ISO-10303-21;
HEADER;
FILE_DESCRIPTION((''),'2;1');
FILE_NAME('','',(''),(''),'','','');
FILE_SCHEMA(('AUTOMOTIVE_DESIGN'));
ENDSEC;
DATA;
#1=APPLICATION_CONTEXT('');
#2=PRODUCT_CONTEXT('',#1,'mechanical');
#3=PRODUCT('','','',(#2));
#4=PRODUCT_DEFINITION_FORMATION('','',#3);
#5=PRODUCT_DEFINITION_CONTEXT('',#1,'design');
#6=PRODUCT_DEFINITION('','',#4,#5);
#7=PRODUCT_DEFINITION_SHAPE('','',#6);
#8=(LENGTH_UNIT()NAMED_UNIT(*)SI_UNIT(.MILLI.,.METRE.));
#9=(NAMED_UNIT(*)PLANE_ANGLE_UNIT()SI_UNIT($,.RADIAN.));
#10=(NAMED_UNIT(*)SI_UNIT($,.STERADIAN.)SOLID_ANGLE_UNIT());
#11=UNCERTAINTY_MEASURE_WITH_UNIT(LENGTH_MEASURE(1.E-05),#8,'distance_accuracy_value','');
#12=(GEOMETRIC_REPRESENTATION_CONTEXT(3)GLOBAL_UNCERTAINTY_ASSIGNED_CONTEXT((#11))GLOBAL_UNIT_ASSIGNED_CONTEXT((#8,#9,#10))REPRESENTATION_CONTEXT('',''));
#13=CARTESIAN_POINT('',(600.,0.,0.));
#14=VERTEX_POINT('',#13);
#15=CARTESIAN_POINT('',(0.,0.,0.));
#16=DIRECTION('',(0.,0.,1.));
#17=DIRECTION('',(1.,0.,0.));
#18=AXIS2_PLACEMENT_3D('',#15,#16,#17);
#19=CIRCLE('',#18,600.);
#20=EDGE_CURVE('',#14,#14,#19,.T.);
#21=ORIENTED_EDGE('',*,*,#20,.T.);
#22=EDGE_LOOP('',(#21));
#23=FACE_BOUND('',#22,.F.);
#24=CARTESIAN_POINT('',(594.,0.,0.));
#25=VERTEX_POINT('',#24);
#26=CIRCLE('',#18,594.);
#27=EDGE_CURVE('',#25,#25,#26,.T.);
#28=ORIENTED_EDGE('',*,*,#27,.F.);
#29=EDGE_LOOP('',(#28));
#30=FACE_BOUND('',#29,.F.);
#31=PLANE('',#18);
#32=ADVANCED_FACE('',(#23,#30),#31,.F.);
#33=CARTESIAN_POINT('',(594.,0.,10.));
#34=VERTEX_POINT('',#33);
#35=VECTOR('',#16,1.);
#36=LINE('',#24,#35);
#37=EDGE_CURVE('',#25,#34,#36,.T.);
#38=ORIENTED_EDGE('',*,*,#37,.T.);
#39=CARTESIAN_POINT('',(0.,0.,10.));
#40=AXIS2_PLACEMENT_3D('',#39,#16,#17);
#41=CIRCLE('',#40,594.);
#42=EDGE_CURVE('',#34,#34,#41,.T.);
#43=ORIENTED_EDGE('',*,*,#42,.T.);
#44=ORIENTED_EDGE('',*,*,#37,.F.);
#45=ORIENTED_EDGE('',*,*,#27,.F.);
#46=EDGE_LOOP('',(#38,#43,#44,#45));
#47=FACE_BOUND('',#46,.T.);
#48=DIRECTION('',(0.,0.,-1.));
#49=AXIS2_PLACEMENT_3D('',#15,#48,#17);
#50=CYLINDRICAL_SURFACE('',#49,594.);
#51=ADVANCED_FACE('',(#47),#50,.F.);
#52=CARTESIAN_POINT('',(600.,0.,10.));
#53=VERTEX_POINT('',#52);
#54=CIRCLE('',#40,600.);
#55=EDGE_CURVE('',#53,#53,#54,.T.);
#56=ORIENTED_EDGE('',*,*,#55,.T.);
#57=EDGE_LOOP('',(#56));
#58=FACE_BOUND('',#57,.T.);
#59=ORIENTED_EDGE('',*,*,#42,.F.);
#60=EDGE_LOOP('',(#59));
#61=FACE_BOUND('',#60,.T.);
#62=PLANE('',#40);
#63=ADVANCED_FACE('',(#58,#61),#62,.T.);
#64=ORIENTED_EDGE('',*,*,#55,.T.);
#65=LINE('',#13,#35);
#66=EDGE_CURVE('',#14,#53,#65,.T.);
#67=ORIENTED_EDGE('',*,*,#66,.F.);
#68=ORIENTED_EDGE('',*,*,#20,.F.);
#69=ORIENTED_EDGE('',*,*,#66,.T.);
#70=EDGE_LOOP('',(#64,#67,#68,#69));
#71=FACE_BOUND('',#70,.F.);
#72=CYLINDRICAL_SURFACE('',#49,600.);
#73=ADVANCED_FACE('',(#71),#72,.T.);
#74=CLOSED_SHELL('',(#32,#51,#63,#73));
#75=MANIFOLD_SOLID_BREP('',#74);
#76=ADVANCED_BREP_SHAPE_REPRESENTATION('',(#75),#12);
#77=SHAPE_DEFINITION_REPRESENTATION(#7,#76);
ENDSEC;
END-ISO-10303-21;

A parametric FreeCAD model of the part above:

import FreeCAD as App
import Part
import Sketcher
Q = App.Units.Quantity

doc = App.newDocument("Part")
params = doc.addObject("Spreadsheet::Sheet", "Params")
for row, (alias, value) in enumerate([
    ("sketch1_diameter", "1200 mm"),
    ("sketch1_diameter2", "1188 mm"),
    ("pad1_length", "10 mm"),
], start=1):
    params.set(f"A{row}", alias)
    params.set(f"B{row}", "=" + value)
    params.setAlias(f"B{row}", alias)

body = doc.addObject("PartDesign::Body", "Body")

# Sketch on XY plane
sketch1 = doc.addObject("Sketcher::SketchObject", "Sketch")
body.addObject(sketch1)
sketch1.AttachmentSupport = (doc.XY_Plane, [""])
sketch1.MapMode = "FlatFace"
sketch1.addGeometry([
    Part.Circle(App.Vector(0, 0, 0), App.Vector(0, 0, 1), 600),
    Part.Circle(App.Vector(0, 0, 0), App.Vector(0, 0, 1), 594),
], False)
sketch1.addConstraint([
    Sketcher.Constraint("Coincident", 0, 3, -1, 1),
    Sketcher.Constraint("Coincident", 1, 3, -1, 1),
    Sketcher.Constraint("Diameter", 0, Q("1200 mm")),
    Sketcher.Constraint("Diameter", 1, Q("1188 mm")),
])
sketch1.setExpression("Constraints[2]", "Params.sketch1_diameter")
sketch1.setExpression("Constraints[3]", "Params.sketch1_diameter2")
pad1 = doc.addObject("PartDesign::Pad", "Pad")
body.addObject(pad1)
pad1.Profile = sketch1
pad1.setExpression("Length", "Params.pad1_length")

doc.recompute()
